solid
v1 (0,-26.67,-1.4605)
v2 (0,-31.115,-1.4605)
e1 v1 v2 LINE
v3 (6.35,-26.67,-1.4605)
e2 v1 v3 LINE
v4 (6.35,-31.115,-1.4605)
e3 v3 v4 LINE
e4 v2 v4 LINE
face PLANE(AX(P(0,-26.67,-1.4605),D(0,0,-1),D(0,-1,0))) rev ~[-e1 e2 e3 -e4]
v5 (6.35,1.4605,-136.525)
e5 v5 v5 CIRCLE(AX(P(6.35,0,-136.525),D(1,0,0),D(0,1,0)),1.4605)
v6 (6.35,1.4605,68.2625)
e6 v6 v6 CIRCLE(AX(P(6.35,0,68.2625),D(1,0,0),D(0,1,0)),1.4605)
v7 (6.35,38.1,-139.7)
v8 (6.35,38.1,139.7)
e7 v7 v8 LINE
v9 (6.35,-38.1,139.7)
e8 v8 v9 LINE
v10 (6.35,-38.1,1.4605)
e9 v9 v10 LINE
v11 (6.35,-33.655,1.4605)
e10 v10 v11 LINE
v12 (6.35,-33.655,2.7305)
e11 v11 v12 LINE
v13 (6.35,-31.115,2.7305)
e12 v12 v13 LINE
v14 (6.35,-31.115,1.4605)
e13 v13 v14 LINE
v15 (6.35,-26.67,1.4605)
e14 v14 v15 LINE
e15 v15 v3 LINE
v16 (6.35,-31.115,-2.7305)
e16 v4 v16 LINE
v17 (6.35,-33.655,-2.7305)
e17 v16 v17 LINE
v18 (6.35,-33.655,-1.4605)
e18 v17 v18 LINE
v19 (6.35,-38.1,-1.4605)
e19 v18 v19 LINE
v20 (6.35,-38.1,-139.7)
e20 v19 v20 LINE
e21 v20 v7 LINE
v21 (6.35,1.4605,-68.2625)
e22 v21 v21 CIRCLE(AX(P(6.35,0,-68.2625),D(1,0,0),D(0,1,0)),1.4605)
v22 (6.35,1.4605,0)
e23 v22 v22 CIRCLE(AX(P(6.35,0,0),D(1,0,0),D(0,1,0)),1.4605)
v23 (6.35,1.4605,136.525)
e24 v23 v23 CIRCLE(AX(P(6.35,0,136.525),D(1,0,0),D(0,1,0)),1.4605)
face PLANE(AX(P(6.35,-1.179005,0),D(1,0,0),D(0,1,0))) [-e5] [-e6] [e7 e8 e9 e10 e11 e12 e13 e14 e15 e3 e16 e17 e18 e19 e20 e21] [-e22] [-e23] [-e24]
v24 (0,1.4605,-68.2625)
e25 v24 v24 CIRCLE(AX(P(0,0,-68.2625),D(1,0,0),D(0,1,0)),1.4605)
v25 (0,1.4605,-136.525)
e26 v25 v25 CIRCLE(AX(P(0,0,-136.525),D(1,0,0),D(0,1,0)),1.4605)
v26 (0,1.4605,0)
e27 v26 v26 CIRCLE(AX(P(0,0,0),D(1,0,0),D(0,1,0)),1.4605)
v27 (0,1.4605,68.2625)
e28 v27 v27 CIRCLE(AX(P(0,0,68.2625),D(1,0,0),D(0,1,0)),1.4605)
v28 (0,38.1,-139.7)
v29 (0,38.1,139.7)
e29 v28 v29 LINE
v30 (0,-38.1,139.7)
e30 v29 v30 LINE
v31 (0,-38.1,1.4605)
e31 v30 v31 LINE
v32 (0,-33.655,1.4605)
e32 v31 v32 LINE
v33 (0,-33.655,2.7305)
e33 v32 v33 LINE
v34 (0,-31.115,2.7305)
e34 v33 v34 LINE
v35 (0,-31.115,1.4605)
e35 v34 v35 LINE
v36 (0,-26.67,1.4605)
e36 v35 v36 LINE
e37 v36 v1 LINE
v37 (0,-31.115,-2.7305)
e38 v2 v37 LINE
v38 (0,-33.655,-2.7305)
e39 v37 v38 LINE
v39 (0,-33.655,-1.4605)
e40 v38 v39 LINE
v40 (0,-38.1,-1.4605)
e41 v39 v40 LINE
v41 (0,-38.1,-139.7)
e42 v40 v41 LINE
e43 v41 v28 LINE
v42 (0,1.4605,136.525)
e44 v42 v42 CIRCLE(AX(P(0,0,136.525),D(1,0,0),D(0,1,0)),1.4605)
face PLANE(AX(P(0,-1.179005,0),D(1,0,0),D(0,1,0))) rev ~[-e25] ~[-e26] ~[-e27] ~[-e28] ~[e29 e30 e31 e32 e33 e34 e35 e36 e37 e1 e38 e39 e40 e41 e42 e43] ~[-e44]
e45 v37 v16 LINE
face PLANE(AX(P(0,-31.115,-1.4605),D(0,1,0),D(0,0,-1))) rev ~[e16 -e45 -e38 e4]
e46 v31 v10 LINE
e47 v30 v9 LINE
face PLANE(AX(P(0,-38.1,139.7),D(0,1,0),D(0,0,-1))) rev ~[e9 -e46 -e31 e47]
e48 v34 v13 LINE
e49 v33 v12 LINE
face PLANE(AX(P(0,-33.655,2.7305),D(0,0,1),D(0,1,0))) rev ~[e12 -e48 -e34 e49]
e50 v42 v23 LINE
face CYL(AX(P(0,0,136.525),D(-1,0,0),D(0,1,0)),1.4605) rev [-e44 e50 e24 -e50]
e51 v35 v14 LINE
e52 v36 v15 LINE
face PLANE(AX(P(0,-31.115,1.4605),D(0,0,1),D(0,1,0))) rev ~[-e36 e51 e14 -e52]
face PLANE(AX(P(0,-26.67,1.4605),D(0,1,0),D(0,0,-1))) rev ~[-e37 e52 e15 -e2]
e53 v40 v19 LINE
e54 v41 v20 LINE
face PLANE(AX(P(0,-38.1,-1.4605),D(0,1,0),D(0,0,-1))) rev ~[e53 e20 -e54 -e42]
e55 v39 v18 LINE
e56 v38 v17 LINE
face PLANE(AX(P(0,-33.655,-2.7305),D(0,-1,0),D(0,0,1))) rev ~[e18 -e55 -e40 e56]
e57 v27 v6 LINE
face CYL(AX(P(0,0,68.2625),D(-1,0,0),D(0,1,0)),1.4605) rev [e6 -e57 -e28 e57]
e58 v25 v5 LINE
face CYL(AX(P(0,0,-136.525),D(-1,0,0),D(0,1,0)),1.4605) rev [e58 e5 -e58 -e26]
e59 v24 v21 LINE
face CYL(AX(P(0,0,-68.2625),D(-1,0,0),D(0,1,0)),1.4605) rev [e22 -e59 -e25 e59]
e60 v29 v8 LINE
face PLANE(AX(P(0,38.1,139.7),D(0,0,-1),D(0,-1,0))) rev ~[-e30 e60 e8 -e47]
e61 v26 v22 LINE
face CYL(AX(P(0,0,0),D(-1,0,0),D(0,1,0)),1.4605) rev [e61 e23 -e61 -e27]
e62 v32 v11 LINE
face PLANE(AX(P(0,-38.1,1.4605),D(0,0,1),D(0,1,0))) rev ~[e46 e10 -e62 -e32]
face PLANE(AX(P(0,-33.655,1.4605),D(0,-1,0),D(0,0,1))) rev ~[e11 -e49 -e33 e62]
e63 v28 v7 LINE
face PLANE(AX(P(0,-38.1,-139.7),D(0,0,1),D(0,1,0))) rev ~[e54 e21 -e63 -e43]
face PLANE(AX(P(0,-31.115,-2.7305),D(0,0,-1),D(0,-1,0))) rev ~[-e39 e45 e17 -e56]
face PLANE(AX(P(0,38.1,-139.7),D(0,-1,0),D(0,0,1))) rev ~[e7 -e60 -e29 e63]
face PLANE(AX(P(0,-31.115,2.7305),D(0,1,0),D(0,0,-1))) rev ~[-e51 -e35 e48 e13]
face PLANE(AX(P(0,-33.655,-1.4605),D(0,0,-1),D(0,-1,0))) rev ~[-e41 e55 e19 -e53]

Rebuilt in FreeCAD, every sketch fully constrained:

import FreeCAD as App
import Part
import Sketcher
Q = App.Units.Quantity


def add_polygon(sketch, points):
    """Adds a closed chain of lines whose ends are joined by coincident constraints."""
    first, n = sketch.GeometryCount, len(points)
    for a, b in zip(points, points[1:] + points[:1]):
        sketch.addGeometry(Part.LineSegment(App.Vector(*a, 0), App.Vector(*b, 0)), False)
    for i in range(n):
        sketch.addConstraint(Sketcher.Constraint("Coincident", first + i, 2, first + (i + 1) % n, 1))

doc = App.newDocument("Part")
body = doc.addObject("PartDesign::Body", "Body")

# Sketch on YZ plane
sketch1 = doc.addObject("Sketcher::SketchObject", "Sketch")
body.addObject(sketch1)
sketch1.AttachmentSupport = (doc.YZ_Plane, [""])
sketch1.MapMode = "FlatFace"
add_polygon(sketch1, [(38.1, 139.7), (-38.1, 139.7), (-38.1, 1.5), (-33.7, 1.5), (-33.7, 2.7), (-31.1, 2.7), (-31.1, 1.5), (-26.7, 1.5), (-26.7, -1.5), (-31.1, -1.5), (-31.1, -2.7), (-33.7, -2.7), (-33.7, -1.5), (-38.1, -1.5), (-38.1, -139.7), (38.1, -139.7)])  # lines 0-15
sketch1.addGeometry(Part.Circle(App.Vector(0, -136.5, 0), App.Vector(0, 0, 1), 1.5), False)  # 16
sketch1.addGeometry(Part.Circle(App.Vector(0, -68.3, 0), App.Vector(0, 0, 1), 1.5), False)  # 17
sketch1.addGeometry(Part.Circle(App.Vector(0, 0, 0), App.Vector(0, 0, 1), 1.5), False)  # 18
sketch1.addGeometry(Part.Circle(App.Vector(0, 68.3, 0), App.Vector(0, 0, 1), 1.5), False)  # 19
sketch1.addGeometry(Part.Circle(App.Vector(0, 136.5, 0), App.Vector(0, 0, 1), 1.5), False)  # 20
sketch1.addConstraint([
    Sketcher.Constraint("Horizontal", 0),
    Sketcher.Constraint("Vertical", 1),
    Sketcher.Constraint("Horizontal", 2),
    Sketcher.Constraint("Vertical", 3),
    Sketcher.Constraint("Horizontal", 4),
    Sketcher.Constraint("Vertical", 5),
    Sketcher.Constraint("Horizontal", 6),
    Sketcher.Constraint("Vertical", 7),
    Sketcher.Constraint("Horizontal", 8),
    Sketcher.Constraint("Vertical", 9),
    Sketcher.Constraint("Horizontal", 10),
    Sketcher.Constraint("Vertical", 11),
    Sketcher.Constraint("Horizontal", 12),
    Sketcher.Constraint("Vertical", 13),
    Sketcher.Constraint("Horizontal", 14),
    Sketcher.Constraint("Vertical", 15),
    Sketcher.Constraint("Coincident", 18, 3, -1, 1),
    Sketcher.Constraint("Equal", 16, 17),
    Sketcher.Constraint("Equal", 17, 18),
    Sketcher.Constraint("Equal", 18, 19),
    Sketcher.Constraint("Equal", 19, 20),
    Sketcher.Constraint("Symmetric", 17, 3, 19, 3, -1, 1),
    Sketcher.Constraint("Symmetric", 16, 3, 20, 3, -1, 1),
    Sketcher.Constraint("Symmetric", 0, 2, 14, 2, -1, 1),
    Sketcher.Constraint("Symmetric", 5, 2, 8, 2, -1),
    Sketcher.Constraint("Symmetric", 3, 2, 10, 2, -1),
    Sketcher.Constraint("Symmetric", 1, 2, 12, 2, -1),
    Sketcher.Constraint("PointOnObject", 16, 3, -2),
    Sketcher.Constraint("PointOnObject", 17, 3, -2),
    Sketcher.Constraint("Horizontal", 2, 2, 5, 2),
    Sketcher.Constraint("Equal", 2, 6),
    Sketcher.Constraint("DistanceX", 0, 2, 0, 1, Q("3 in")),
    Sketcher.Constraint("DistanceY", 15, 1, 15, 2, Q("11 in")),
    Sketcher.Constraint("Diameter", 16, Q("0.115 in")),
    Sketcher.Constraint("DistanceX", 4, 1, 4, 2, Q("0.1 in")),
    Sketcher.Constraint("DistanceY", 3, 1, 3, 2, Q("0.05 in")),
    Sketcher.Constraint("DistanceX", 2, 1, 2, 2, Q("0.175 in")),
    Sketcher.Constraint("DistanceY", 7, 2, 7, 1, Q("0.115 in")),
    Sketcher.Constraint("DistanceY", 16, 3, 20, 3, Q("10.75 in")),
    Sketcher.Constraint("DistanceY", 1, 2, 19, 3, Q("2.63 in")),
])
pad1 = doc.addObject("PartDesign::Pad", "Pad")
body.addObject(pad1)
pad1.Profile = sketch1
pad1.Length = Q("0.25 in")

doc.recompute()
